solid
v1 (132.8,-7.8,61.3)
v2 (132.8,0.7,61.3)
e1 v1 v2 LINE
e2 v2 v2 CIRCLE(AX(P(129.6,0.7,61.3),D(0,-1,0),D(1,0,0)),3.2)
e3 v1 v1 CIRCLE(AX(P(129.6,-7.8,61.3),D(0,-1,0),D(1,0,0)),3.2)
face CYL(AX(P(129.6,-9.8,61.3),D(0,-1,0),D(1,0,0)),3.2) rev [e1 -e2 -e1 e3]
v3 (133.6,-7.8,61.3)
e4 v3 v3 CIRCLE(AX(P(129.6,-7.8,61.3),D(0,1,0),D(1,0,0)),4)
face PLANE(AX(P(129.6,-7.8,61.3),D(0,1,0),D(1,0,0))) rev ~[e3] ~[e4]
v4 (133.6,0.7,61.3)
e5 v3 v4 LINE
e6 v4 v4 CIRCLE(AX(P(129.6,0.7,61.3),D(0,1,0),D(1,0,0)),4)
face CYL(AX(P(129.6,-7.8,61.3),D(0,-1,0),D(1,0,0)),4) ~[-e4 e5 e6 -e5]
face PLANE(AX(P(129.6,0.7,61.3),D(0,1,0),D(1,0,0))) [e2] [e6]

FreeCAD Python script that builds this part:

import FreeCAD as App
import Part
import Sketcher
from FreeCAD import Vector

doc = App.newDocument("Part")
body = doc.addObject("PartDesign::Body", "Body")

sketch1 = doc.addObject("Sketcher::SketchObject", "Sketch")
body.addObject(sketch1)
sketch1.AttachmentSupport = (doc.XZ_Plane, [""])
sketch1.MapMode = "FlatFace"
sketch1.AttachmentOffset = App.Placement(Vector(0, 0, 9.8), App.Rotation())
sketch1.addGeometry(Part.Circle(Vector(129.6, 61.3, 0), Vector(0, 0, 1), 3.2), False)
sketch1.addConstraint([
    Sketcher.Constraint("Diameter", 0, 6.4),
    Sketcher.Constraint("DistanceX", -1, 1, 0, 3, 129.6),
    Sketcher.Constraint("DistanceY", -1, 1, 0, 3, 61.3),
])
pad1 = doc.addObject("PartDesign::Pad", "Pad")
body.addObject(pad1)
pad1.Profile = sketch1
pad1.Length = 16
pad1.Reversed = True
body2 = doc.addObject("PartDesign::Body", "Body001")

sketch2 = doc.addObject("Sketcher::SketchObject", "Sketch001")
body2.addObject(sketch2)
sketch2.AttachmentSupport = (doc.getObject("XZ_Plane001"), [""])
sketch2.MapMode = "FlatFace"
sketch2.AttachmentOffset = App.Placement(Vector(0, 0, 7.8), App.Rotation())
sketch2.addGeometry(Part.Circle(Vector(129.6, 61.3, 0), Vector(0, 0, 1), 4), False)
sketch2.addConstraint([
    Sketcher.Constraint("Diameter", 0, 8.0),
    Sketcher.Constraint("DistanceX", -1, 1, 0, 3, 129.6),
    Sketcher.Constraint("DistanceY", -1, 1, 0, 3, 61.3),
])
pad2 = doc.addObject("PartDesign::Pad", "Pad001")
body2.addObject(pad2)
pad2.Profile = sketch2
pad2.Length = 8.5
pad2.Reversed = True
doc.recompute()

boolean = doc.addObject("PartDesign::Boolean", "Boolean")
body2.addObject(boolean)
boolean.Type = "Cut"
boolean.addObjects([body])

doc.recompute()
